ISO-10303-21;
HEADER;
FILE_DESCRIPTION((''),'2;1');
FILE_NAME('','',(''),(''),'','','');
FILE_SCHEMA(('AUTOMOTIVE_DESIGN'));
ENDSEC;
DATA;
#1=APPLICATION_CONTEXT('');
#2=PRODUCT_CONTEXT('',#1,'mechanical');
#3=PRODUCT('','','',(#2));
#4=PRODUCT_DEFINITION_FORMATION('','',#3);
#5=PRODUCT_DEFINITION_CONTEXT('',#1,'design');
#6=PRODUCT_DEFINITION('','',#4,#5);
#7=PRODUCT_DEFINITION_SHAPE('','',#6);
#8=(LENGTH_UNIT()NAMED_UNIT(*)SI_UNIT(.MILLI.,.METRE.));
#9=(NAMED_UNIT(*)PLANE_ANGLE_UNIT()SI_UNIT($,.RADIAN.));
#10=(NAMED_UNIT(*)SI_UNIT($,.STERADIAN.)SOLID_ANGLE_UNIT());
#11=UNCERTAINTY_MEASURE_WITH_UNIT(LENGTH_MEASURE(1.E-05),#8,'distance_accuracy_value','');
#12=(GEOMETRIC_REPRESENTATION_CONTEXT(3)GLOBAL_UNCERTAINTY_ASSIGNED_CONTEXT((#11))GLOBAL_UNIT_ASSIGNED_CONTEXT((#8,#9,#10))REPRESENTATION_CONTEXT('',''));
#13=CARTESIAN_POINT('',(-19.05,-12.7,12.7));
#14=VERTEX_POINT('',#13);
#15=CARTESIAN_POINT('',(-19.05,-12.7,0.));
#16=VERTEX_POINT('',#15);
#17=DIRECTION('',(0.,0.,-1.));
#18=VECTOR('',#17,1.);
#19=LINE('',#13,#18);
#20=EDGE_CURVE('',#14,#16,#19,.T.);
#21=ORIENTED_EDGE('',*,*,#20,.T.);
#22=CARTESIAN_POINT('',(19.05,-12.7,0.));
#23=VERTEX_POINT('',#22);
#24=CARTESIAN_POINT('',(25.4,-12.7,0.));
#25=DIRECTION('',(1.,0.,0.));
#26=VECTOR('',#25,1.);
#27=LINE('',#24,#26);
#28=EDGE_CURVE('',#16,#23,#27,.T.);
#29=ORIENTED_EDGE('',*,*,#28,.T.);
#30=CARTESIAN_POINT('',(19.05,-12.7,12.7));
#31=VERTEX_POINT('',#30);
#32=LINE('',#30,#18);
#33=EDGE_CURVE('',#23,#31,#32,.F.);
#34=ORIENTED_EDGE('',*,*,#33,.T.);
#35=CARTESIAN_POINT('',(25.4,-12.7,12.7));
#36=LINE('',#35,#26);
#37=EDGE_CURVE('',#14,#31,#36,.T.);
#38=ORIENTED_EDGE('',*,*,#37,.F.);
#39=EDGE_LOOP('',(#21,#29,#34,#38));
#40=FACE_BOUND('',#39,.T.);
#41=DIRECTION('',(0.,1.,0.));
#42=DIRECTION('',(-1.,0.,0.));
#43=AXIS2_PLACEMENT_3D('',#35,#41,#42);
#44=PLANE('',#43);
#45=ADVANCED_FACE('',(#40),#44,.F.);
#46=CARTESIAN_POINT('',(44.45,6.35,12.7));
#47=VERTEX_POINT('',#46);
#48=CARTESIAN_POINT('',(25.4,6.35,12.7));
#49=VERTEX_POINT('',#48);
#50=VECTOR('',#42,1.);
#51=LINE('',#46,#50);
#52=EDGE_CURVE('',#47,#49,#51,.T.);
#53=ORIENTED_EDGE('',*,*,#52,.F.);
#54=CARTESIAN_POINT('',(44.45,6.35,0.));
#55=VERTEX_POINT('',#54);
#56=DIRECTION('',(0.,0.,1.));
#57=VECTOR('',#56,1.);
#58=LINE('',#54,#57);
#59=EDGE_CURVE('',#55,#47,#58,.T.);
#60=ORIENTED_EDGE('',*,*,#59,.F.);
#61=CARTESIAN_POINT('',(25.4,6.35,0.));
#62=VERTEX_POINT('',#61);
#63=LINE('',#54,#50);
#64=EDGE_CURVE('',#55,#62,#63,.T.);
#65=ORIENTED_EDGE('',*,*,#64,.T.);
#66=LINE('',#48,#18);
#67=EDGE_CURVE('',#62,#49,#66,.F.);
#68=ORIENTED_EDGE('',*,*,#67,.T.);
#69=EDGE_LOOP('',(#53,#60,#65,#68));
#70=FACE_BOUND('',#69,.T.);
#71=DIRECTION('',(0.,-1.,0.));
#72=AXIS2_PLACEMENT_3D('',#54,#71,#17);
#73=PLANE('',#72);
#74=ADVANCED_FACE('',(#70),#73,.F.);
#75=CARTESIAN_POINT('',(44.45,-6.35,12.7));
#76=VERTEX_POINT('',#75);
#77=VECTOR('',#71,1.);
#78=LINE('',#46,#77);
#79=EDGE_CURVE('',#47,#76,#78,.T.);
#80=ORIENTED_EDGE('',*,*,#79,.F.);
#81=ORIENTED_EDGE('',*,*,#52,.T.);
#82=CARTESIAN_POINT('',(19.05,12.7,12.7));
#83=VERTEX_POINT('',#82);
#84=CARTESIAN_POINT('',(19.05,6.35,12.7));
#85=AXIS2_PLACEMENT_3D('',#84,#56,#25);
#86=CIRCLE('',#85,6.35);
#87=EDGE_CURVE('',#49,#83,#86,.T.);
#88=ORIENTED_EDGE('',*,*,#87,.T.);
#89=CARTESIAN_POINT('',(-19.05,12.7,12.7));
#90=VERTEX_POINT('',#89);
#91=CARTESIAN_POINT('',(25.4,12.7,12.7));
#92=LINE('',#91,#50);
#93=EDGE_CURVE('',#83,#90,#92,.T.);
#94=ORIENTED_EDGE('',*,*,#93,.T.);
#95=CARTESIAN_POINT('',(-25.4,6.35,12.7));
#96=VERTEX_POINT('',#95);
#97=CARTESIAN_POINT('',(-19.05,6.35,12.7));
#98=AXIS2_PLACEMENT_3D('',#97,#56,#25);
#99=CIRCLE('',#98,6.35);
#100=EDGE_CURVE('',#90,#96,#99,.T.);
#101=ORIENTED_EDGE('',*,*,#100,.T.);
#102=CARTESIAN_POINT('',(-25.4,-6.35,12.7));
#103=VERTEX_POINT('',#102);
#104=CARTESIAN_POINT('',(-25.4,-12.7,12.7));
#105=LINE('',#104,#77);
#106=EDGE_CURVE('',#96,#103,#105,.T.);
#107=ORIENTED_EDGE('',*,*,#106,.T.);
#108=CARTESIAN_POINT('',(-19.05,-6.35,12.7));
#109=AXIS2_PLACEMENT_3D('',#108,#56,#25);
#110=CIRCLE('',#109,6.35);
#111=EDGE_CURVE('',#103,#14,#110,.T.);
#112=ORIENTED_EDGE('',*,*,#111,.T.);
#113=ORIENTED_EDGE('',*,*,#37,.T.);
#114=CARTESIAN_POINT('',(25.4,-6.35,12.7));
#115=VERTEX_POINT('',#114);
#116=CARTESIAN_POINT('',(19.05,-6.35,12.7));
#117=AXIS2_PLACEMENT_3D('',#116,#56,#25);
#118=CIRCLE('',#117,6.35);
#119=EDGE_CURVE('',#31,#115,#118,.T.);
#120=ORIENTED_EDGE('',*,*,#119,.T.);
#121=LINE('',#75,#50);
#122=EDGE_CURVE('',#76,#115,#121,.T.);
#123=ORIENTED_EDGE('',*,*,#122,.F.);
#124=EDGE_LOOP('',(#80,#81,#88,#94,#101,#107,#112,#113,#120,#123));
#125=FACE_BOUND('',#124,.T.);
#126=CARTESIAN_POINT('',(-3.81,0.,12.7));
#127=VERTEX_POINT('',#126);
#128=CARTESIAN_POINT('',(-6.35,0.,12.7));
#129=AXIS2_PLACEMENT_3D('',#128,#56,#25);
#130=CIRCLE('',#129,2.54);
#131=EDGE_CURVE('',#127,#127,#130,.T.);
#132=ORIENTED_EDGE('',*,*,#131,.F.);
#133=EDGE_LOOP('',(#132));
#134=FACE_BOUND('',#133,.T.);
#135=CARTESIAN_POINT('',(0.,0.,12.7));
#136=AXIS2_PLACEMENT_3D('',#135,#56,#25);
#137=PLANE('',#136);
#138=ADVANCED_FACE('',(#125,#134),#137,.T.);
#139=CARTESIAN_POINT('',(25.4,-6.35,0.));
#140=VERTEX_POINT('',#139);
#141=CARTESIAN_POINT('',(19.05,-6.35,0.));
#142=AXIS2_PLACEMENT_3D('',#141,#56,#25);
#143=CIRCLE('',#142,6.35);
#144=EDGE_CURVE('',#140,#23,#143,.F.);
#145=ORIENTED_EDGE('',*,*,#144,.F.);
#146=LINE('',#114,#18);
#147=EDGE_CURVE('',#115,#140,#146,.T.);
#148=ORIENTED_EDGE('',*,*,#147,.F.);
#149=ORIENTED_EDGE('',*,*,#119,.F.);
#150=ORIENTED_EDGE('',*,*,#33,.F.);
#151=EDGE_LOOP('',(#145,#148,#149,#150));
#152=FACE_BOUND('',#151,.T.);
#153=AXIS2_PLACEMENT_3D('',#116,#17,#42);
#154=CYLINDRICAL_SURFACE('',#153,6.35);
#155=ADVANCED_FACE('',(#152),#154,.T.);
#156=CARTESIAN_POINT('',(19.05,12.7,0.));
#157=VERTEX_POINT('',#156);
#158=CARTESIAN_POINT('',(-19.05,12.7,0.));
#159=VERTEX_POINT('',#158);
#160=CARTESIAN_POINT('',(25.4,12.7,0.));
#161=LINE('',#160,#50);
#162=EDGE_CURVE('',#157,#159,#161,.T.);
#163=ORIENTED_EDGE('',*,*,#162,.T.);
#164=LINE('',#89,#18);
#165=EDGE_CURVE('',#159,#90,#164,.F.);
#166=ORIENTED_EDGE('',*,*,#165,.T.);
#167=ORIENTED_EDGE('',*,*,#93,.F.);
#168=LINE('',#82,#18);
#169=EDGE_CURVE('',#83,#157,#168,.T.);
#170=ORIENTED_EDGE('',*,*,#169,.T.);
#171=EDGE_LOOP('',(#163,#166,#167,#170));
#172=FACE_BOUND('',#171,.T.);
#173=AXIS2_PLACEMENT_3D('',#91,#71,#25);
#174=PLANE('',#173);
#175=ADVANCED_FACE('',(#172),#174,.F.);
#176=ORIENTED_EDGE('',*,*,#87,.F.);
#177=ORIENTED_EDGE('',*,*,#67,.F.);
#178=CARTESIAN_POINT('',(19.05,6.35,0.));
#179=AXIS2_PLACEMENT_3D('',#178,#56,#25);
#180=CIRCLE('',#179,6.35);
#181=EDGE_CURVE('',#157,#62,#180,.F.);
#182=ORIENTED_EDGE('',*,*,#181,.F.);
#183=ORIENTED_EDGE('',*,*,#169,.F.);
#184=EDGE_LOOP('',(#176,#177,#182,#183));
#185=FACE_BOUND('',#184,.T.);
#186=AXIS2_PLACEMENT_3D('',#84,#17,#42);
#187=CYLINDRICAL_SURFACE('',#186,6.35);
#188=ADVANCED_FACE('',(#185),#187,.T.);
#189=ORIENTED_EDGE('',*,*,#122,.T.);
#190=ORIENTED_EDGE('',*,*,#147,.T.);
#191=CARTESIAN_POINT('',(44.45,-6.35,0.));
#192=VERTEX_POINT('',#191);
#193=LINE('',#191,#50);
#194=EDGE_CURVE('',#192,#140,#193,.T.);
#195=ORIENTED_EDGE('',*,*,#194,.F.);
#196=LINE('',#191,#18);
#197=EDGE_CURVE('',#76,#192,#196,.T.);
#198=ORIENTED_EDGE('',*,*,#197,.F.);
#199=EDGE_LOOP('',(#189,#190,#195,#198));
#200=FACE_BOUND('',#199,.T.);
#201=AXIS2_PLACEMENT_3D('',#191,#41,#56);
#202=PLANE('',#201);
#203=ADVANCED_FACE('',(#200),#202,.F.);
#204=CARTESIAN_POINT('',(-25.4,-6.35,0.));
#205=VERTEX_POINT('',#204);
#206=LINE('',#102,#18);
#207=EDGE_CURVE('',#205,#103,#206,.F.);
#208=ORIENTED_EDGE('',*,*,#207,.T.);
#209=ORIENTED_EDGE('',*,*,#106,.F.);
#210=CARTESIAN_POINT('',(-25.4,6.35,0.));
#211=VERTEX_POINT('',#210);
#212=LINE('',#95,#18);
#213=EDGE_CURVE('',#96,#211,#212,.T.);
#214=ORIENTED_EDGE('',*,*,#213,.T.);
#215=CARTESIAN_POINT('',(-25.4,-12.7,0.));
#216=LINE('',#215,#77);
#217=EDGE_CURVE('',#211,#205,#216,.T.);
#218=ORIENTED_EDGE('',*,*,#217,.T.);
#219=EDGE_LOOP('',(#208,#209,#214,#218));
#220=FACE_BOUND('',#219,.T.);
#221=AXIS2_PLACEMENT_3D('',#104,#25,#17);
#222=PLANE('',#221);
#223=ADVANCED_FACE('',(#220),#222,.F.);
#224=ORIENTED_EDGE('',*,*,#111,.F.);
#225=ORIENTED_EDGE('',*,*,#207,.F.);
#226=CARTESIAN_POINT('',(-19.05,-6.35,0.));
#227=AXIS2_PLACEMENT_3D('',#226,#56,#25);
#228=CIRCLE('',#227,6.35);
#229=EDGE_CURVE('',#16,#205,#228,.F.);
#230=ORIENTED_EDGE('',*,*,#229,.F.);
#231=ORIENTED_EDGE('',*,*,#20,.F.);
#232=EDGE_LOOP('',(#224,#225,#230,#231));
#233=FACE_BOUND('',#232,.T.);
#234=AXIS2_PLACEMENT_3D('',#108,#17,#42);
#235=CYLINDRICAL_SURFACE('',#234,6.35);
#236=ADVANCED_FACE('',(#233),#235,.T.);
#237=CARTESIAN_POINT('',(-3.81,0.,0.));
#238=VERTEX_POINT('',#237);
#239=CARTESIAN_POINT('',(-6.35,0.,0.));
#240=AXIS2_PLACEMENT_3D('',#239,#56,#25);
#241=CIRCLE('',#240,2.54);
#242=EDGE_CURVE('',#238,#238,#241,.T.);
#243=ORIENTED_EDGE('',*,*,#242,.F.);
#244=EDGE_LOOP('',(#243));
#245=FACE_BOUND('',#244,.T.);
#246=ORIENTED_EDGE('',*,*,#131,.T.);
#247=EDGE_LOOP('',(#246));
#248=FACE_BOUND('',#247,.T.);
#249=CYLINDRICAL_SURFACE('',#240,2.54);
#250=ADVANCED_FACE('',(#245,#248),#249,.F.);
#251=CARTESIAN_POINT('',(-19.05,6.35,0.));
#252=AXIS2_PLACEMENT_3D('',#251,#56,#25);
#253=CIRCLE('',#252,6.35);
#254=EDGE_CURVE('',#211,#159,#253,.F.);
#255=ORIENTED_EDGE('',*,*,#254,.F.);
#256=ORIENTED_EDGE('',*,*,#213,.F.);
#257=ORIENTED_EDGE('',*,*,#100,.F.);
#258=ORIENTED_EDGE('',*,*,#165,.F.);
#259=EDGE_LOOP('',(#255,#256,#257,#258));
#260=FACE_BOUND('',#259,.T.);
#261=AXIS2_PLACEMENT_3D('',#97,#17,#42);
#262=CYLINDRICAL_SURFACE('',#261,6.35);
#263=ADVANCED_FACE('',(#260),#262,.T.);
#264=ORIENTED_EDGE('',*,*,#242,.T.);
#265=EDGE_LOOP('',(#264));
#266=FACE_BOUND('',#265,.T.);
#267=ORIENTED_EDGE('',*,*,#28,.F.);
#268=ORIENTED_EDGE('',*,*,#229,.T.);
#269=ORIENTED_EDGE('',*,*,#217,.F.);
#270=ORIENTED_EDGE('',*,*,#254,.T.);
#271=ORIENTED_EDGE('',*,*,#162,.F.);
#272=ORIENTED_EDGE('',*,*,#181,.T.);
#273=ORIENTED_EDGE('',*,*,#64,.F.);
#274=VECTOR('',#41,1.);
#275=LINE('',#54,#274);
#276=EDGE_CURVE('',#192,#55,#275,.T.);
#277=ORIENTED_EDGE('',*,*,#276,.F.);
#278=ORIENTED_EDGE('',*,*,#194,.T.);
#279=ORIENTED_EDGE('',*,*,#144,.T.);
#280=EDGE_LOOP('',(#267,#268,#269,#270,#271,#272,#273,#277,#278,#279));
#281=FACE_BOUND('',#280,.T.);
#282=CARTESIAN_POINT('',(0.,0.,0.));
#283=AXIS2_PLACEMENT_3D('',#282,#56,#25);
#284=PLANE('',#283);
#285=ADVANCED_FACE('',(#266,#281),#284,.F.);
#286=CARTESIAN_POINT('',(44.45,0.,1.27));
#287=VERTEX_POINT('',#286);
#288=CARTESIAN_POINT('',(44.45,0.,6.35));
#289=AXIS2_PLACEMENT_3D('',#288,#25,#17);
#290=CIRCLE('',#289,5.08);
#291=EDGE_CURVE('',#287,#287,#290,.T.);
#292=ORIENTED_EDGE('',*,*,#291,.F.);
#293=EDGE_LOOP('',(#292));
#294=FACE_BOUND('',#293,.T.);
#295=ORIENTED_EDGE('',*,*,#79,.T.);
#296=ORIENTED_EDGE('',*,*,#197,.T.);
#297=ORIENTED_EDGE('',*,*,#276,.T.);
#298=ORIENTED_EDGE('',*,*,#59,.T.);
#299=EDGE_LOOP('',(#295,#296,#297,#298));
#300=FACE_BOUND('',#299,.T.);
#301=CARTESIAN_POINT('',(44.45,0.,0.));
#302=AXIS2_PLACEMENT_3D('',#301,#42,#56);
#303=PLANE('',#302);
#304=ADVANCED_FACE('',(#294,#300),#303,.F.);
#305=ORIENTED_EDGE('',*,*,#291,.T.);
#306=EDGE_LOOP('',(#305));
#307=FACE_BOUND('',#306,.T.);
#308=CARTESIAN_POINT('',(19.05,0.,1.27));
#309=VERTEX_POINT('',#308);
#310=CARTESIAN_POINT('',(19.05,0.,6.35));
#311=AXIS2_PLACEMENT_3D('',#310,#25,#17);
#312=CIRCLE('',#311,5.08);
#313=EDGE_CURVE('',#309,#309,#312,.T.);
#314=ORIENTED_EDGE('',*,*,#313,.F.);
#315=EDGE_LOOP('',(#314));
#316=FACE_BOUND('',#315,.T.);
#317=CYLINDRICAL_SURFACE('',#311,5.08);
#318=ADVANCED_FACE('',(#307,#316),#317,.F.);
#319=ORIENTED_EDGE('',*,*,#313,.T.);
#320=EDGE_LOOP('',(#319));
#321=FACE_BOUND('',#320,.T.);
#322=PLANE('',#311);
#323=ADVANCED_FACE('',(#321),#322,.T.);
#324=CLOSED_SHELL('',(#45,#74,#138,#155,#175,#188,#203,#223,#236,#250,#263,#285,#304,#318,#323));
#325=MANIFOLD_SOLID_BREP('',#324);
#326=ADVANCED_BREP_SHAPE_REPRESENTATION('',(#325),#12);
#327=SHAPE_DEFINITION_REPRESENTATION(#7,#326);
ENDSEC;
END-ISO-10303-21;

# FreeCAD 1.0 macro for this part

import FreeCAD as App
import Part
import Sketcher
from FreeCAD import Vector
Q = App.Units.Quantity


def edges_at(feature, points):
    """Names of the edges that pass closest to the given points."""
    edges = feature.Shape.Edges
    near = lambda p: min(range(len(edges)), key=lambda i: edges[i].distToShape(Part.Vertex(*p))[0])
    return sorted({f"Edge{near(p) + 1}" for p in points})

doc = App.newDocument("Part")
body = doc.addObject("PartDesign::Body", "Body")

sketch1 = doc.addObject("Sketcher::SketchObject", "Sketch")
body.addObject(sketch1)
sketch1.AttachmentSupport = (doc.XY_Plane, [""])
sketch1.MapMode = "FlatFace"
sketch1.addGeometry(Part.LineSegment(Vector(-25, 13, 0), Vector(-25, -13, 0)), False)
sketch1.addGeometry(Part.LineSegment(Vector(-25, -13, 0), Vector(25, -13, 0)), False)
sketch1.addGeometry(Part.LineSegment(Vector(25, -13, 0), Vector(25, 13, 0)), False)
sketch1.addGeometry(Part.LineSegment(Vector(25, 13, 0), Vector(-25, 13, 0)), False)
sketch1.addConstraint(Sketcher.Constraint("Coincident", 0, 2, 1, 1))
sketch1.addConstraint(Sketcher.Constraint("Coincident", 1, 2, 2, 1))
sketch1.addConstraint(Sketcher.Constraint("Coincident", 2, 2, 3, 1))
sketch1.addConstraint(Sketcher.Constraint("Coincident", 3, 2, 0, 1))
sketch1.addConstraint(Sketcher.Constraint("Vertical", 0))
sketch1.addConstraint(Sketcher.Constraint("Horizontal", 1))
sketch1.addConstraint(Sketcher.Constraint("Vertical", 2))
sketch1.addConstraint(Sketcher.Constraint("Horizontal", 3))
sketch1.addConstraint(Sketcher.Constraint("Symmetric", 0, 2, 2, 2, -1, 1))
sketch1.addConstraint(Sketcher.Constraint("DistanceX", 1, 1, 1, 2, Q("2 in")))
sketch1.addConstraint(Sketcher.Constraint("DistanceY", 0, 2, 0, 1, Q("1 in")))
pad1 = doc.addObject("PartDesign::Pad", "Pad")
body.addObject(pad1)
pad1.Profile = sketch1
pad1.Length = Q("0.5 in")
doc.recompute()

fillet = doc.addObject("PartDesign::Fillet", "Fillet")
body.addObject(fillet)
fillet.Base = (pad1, edges_at(pad1, [
    (-25.4, 12.7, 6.35),
    (25.4, 12.7, 6.35),
    (25.4, -12.7, 6.35),
    (-25.4, -12.7, 6.35),
]))
fillet.Radius = Q("0.25 in")

sketch2 = doc.addObject("Sketcher::SketchObject", "Sketch001")
body.addObject(sketch2)
sketch2.AttachmentSupport = (doc.XY_Plane, [""])
sketch2.MapMode = "FlatFace"
sketch2.AttachmentOffset = App.Placement(Vector(0, 0, 0.5 * 25.4), App.Rotation())
sketch2.addGeometry(Part.Circle(Vector(-6.3, 0, 0), Vector(0, 0, 1), 2.5), False)
sketch2.addConstraint(Sketcher.Constraint("PointOnObject", 0, 3, -1))
sketch2.addConstraint(Sketcher.Constraint("Diameter", 0, Q("0.2 in")))
sketch2.addConstraint(Sketcher.Constraint("DistanceX", 0, 3, -1, 1, Q("0.25 in")))
pocket1 = doc.addObject("PartDesign::Pocket", "Pocket")
body.addObject(pocket1)
pocket1.Profile = sketch2
pocket1.Type = "ThroughAll"

sketch3 = doc.addObject("Sketcher::SketchObject", "Sketch002")
body.addObject(sketch3)
sketch3.AttachmentSupport = (doc.YZ_Plane, [""])
sketch3.MapMode = "FlatFace"
sketch3.AttachmentOffset = App.Placement(Vector(0, 0, 1 * 25.4), App.Rotation())
sketch3.addGeometry(Part.LineSegment(Vector(6, 13, 0), Vector(-6, 13, 0)), False)
sketch3.addGeometry(Part.LineSegment(Vector(-6, 13, 0), Vector(-6, 0, 0)), False)
sketch3.addGeometry(Part.LineSegment(Vector(-6, 0, 0), Vector(6, 0, 0)), False)
sketch3.addGeometry(Part.LineSegment(Vector(6, 0, 0), Vector(6, 13, 0)), False)
sketch3.addConstraint(Sketcher.Constraint("Coincident", 0, 2, 1, 1))
sketch3.addConstraint(Sketcher.Constraint("Coincident", 1, 2, 2, 1))
sketch3.addConstraint(Sketcher.Constraint("Coincident", 2, 2, 3, 1))
sketch3.addConstraint(Sketcher.Constraint("Coincident", 3, 2, 0, 1))
sketch3.addConstraint(Sketcher.Constraint("Horizontal", 0))
sketch3.addConstraint(Sketcher.Constraint("Vertical", 1))
sketch3.addConstraint(Sketcher.Constraint("Horizontal", 2))
sketch3.addConstraint(Sketcher.Constraint("Vertical", 3))
sketch3.addConstraint(Sketcher.Constraint("Symmetric", 1, 2, 2, 2, -1, 1))
sketch3.addConstraint(Sketcher.Constraint("Equal", 2, 1))
sketch3.addConstraint(Sketcher.Constraint("DistanceX", 0, 2, 0, 1, Q("0.5 in")))
pad2 = doc.addObject("PartDesign::Pad", "Pad001")
body.addObject(pad2)
pad2.Profile = sketch3
pad2.Length = Q("0.75 in")

sketch4 = doc.addObject("Sketcher::SketchObject", "Sketch003")
body.addObject(sketch4)
sketch4.AttachmentSupport = (doc.YZ_Plane, [""])
sketch4.MapMode = "FlatFace"
sketch4.AttachmentOffset = App.Placement(Vector(0, 0, 1.75 * 25.4), App.Rotation())
sketch4.addGeometry(Part.Circle(Vector(0, 6, 0), Vector(0, 0, 1), 5), False)
sketch4.addConstraint(Sketcher.Constraint("PointOnObject", 0, 3, -2))
sketch4.addConstraint(Sketcher.Constraint("Diameter", 0, Q("0.4 in")))
sketch4.addConstraint(Sketcher.Constraint("DistanceY", -1, 1, 0, 3, Q("0.25 in")))
pocket2 = doc.addObject("PartDesign::Pocket", "Pocket001")
body.addObject(pocket2)
pocket2.Profile = sketch4
pocket2.Length = Q("1 in")

doc.recompute()
